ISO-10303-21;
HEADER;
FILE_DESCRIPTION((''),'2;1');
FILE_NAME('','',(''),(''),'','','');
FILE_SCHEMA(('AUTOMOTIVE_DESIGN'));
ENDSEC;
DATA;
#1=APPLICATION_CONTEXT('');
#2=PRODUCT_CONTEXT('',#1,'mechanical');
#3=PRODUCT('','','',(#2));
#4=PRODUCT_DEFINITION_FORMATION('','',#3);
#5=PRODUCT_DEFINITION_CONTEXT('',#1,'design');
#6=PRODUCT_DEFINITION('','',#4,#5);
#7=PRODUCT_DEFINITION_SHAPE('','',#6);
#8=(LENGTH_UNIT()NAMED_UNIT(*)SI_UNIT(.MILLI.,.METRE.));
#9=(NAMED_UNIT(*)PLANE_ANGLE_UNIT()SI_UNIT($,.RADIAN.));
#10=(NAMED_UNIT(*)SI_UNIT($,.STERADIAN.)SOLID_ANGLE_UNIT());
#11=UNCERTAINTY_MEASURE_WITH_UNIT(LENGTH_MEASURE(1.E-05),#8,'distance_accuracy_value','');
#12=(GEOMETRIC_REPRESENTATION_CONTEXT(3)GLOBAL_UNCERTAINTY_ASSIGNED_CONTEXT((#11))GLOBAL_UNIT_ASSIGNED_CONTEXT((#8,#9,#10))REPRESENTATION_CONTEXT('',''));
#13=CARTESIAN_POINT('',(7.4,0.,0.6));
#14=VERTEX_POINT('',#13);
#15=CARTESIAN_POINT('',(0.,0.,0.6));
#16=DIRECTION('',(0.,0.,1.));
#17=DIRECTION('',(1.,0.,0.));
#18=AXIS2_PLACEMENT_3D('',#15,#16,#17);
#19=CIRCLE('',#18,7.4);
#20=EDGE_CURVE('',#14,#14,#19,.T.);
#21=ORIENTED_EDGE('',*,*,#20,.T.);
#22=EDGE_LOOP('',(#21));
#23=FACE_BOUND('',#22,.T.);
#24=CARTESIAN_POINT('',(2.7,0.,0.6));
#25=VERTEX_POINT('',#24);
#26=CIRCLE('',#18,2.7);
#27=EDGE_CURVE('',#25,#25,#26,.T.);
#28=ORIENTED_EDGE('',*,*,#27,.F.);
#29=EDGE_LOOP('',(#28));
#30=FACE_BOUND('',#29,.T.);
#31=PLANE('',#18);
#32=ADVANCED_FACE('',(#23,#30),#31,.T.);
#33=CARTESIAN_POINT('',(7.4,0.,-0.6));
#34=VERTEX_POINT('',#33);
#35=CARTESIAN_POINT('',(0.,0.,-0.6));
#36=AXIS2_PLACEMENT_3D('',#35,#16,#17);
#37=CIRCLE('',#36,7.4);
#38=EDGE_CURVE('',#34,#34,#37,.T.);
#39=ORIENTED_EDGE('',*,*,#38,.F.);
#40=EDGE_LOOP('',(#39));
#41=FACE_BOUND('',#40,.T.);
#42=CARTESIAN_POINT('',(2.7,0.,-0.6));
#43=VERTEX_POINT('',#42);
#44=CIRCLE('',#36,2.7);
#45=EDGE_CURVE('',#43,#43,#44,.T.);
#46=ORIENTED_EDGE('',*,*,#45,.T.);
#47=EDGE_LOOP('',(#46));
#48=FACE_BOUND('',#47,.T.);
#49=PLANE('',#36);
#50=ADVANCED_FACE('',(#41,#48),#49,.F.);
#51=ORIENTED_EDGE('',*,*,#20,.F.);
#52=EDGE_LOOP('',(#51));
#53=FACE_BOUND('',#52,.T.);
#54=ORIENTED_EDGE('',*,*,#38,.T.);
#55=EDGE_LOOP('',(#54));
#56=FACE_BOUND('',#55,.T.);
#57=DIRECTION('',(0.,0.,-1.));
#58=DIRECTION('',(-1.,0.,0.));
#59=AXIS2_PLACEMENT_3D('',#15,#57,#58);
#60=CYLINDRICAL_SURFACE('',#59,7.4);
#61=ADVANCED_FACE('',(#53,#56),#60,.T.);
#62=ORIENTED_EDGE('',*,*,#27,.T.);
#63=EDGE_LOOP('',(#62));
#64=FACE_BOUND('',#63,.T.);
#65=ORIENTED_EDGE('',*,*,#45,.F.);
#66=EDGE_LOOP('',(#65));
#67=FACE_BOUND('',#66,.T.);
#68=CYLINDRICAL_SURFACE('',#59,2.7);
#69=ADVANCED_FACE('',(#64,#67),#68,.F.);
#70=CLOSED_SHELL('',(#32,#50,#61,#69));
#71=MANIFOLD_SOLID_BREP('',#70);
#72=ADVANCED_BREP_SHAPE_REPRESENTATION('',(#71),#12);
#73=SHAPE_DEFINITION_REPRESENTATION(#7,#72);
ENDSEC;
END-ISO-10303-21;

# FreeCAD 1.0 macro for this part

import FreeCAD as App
import Part
import Sketcher

V = App.Vector
Q = App.Units.Quantity

doc = App.newDocument("Part")
params = doc.addObject("Spreadsheet::Sheet", "Params")
for row, (alias, value) in enumerate([
    ("sketch1_diameter", "14.8 mm"),
    ("sketch1_diameter2", "5.4 mm"),
    ("pad1_length", "1.2 mm"),
], start=1):
    params.set(f"A{row}", alias)
    params.set(f"B{row}", "=" + value)
    params.setAlias(f"B{row}", alias)

body = doc.addObject("PartDesign::Body", "Body")

# Sketch on XY plane
sketch1 = body.newObject("Sketcher::SketchObject", "Sketch")
sketch1.AttachmentSupport = (doc.getObject("XY_Plane"), [""])
sketch1.MapMode = "FlatFace"
sketch1.addGeometry([
    Part.Circle(V(0, 0, 0), V(0, 0, 1), 7.4),
    Part.Circle(V(0, 0, 0), V(0, 0, 1), 2.7),
], False)
sketch1.addConstraint([
    Sketcher.Constraint("Coincident", 0, 3, -1, 1),
    Sketcher.Constraint("Coincident", 1, 3, -1, 1),
    Sketcher.Constraint("Diameter", 0, Q("14.8 mm")),
    Sketcher.Constraint("Diameter", 1, Q("5.4 mm")),
])
sketch1.setExpression("Constraints[2]", "Params.sketch1_diameter")
sketch1.setExpression("Constraints[3]", "Params.sketch1_diameter2")
pad1 = body.newObject("PartDesign::Pad", "Pad")
pad1.Profile = sketch1
pad1.setExpression("Length", "Params.pad1_length")
pad1.Midplane = True

doc.recompute()
